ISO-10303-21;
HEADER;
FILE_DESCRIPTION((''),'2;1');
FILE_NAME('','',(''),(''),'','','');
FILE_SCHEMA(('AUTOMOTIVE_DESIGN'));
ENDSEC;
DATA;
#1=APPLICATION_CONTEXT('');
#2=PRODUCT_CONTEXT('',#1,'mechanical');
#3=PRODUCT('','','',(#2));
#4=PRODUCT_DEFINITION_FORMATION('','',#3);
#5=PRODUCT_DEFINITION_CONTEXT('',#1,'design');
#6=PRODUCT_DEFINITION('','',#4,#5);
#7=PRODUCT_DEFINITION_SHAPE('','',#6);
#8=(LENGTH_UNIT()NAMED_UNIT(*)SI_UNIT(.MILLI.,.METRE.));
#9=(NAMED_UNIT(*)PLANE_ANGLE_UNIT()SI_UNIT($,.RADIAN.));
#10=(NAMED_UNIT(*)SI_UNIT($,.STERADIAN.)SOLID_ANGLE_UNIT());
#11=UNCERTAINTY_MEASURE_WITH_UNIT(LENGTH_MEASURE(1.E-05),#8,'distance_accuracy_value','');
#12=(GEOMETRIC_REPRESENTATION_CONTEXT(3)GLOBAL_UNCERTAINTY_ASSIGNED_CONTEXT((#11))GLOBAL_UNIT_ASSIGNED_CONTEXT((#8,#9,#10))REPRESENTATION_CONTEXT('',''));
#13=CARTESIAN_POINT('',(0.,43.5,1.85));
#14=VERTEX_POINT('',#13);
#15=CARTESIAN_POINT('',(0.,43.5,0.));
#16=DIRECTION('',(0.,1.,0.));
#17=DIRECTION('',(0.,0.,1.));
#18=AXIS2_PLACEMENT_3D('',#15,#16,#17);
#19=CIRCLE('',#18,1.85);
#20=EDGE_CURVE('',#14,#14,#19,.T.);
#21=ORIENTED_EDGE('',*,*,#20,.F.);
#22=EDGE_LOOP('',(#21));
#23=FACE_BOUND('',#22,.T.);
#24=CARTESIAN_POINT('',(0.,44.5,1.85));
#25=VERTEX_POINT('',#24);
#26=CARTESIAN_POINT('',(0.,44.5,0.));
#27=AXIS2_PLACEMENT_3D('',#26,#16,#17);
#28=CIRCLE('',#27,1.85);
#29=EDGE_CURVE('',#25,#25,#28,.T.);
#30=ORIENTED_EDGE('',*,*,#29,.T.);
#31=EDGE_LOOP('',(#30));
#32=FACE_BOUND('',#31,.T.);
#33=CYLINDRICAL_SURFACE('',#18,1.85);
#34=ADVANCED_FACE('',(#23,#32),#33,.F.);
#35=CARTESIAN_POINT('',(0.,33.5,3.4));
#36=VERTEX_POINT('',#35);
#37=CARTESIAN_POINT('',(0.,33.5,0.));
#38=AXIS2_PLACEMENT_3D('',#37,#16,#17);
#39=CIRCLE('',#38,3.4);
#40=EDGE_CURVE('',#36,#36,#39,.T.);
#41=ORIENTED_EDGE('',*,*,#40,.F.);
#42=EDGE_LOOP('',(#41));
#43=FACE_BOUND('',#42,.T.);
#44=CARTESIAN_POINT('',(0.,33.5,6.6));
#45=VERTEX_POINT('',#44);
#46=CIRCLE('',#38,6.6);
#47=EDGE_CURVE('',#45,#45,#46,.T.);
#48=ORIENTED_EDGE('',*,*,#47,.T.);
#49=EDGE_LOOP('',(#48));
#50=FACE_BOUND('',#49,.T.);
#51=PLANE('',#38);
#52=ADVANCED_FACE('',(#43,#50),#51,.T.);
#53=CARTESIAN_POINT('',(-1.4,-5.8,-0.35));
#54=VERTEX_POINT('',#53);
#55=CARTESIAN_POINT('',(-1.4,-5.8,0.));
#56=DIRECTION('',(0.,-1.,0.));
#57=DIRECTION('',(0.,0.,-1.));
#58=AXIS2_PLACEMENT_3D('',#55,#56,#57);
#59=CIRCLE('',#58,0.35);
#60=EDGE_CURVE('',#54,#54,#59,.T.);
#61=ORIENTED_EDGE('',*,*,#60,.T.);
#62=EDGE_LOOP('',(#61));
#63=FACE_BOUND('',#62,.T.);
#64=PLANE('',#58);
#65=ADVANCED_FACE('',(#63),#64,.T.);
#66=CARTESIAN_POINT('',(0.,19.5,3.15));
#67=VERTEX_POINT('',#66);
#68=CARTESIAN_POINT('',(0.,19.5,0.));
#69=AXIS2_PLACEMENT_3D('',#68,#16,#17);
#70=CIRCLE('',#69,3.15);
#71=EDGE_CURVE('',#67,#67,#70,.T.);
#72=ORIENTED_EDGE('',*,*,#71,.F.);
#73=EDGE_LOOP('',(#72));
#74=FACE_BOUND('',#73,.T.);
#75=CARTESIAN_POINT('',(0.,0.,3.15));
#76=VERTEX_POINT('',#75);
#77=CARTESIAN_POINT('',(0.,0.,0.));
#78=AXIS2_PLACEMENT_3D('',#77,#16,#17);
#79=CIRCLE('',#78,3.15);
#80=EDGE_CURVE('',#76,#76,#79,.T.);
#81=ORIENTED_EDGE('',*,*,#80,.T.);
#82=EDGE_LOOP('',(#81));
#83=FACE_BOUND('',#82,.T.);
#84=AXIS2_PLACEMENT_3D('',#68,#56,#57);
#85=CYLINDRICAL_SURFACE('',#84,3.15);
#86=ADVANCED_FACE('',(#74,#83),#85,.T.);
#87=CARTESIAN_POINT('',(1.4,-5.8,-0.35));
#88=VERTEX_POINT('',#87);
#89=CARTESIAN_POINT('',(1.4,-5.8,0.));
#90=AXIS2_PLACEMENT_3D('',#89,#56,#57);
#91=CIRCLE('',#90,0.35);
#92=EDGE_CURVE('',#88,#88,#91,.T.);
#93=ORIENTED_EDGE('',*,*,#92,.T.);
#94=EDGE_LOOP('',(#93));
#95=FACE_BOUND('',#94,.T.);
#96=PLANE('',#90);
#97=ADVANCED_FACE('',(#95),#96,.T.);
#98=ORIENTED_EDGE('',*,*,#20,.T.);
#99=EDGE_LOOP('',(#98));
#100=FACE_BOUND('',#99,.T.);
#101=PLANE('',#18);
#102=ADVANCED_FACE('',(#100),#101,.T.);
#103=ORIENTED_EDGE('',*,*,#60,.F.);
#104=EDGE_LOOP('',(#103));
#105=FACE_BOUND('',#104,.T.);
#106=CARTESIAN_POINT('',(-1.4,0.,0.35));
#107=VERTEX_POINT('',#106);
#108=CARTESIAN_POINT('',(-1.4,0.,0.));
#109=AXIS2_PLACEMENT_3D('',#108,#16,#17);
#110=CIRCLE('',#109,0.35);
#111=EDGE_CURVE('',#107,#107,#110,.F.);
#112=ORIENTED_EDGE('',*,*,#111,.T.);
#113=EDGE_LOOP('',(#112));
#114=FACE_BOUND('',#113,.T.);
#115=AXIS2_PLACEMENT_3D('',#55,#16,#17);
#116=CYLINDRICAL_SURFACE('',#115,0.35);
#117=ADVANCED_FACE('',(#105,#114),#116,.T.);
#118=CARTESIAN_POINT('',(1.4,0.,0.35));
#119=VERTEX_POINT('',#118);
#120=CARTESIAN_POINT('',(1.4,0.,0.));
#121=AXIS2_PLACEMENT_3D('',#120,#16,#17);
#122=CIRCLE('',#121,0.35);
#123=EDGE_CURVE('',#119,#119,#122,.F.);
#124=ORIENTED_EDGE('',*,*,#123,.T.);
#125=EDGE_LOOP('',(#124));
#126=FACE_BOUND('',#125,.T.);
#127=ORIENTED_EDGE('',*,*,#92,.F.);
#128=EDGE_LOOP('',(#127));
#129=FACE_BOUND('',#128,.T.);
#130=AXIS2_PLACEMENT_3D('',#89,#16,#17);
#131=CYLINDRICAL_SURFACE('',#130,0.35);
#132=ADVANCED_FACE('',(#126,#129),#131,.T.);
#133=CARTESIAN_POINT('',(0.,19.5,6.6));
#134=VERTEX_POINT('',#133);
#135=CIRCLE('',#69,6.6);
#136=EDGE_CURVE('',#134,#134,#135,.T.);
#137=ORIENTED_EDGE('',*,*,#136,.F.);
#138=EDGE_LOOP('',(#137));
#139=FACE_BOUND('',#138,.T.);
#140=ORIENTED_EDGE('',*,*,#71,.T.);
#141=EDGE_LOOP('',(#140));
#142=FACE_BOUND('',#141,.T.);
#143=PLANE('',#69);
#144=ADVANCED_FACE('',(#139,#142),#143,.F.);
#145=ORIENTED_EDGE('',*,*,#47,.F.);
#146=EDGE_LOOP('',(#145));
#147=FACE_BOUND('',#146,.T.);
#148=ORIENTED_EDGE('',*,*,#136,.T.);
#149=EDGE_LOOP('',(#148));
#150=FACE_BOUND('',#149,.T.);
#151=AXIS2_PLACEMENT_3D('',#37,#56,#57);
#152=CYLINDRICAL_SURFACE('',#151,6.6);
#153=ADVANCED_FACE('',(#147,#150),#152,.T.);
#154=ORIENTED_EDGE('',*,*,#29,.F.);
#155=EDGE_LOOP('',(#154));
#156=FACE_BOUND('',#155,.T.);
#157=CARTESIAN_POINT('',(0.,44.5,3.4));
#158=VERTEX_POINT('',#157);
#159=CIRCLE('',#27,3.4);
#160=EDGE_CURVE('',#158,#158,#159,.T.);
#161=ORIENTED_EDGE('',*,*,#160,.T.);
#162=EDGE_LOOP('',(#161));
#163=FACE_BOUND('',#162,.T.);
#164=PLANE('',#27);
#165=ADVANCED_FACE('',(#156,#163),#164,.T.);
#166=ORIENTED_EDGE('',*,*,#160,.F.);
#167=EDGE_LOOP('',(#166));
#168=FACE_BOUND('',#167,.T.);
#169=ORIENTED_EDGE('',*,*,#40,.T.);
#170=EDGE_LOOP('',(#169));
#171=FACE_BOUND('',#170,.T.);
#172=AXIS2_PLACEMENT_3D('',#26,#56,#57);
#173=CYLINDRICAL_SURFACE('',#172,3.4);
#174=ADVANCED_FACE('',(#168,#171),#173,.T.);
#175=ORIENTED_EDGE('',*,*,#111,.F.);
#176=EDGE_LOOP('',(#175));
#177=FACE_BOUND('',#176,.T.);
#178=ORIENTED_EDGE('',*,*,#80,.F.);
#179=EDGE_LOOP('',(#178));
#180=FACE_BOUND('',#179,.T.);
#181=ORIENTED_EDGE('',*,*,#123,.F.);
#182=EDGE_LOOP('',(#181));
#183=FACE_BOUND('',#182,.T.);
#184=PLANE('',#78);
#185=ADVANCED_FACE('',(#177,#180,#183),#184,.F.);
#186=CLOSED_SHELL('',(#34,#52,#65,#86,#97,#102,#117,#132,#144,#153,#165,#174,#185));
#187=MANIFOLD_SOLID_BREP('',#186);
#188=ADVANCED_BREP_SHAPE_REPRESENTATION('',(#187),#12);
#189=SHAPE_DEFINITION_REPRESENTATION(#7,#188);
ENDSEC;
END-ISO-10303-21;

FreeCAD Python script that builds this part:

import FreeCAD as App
import Part
import Sketcher

V = App.Vector

doc = App.newDocument("Part")
body = doc.addObject("PartDesign::Body", "Body")

sketch1 = doc.addObject("Sketcher::SketchObject", "Sketch")
body.addObject(sketch1)
sketch1.AttachmentSupport = (doc.XZ_Plane, [""])
sketch1.MapMode = "FlatFace"
sketch1.addGeometry(Part.Circle(V(0, 0, 0), V(0, 0, 1), 3.1), False)
sketch1.addConstraint(Sketcher.Constraint("Coincident", 0, 3, -1, 1))
sketch1.addConstraint(Sketcher.Constraint("Diameter", 0, 6.3))
pad1 = doc.addObject("PartDesign::Pad", "Pad")
body.addObject(pad1)
pad1.Profile = sketch1
pad1.Length = 19.5
pad1.Reversed = True

sketch2 = doc.addObject("Sketcher::SketchObject", "Sketch001")
body.addObject(sketch2)
sketch2.AttachmentSupport = (doc.XZ_Plane, [""])
sketch2.MapMode = "FlatFace"
sketch2.addGeometry(Part.Circle(V(-1.4, 0, 0), V(0, 0, 1), 0.35), False)
sketch2.addGeometry(Part.Circle(V(1.4, 0, 0), V(0, 0, 1), 0.35), False)
sketch2.addConstraint(Sketcher.Constraint("Equal", 0, 1))
sketch2.addConstraint(Sketcher.Constraint("Symmetric", 0, 3, 1, 3, -1, 1))
sketch2.addConstraint(Sketcher.Constraint("PointOnObject", 0, 3, -1))
sketch2.addConstraint(Sketcher.Constraint("Diameter", 0, 0.7))
sketch2.addConstraint(Sketcher.Constraint("DistanceX", 0, 3, -1, 1, 1.4))
pad2 = doc.addObject("PartDesign::Pad", "Pad001")
body.addObject(pad2)
pad2.Profile = sketch2
pad2.Length = 5.8

sketch3 = doc.addObject("Sketcher::SketchObject", "Sketch002")
body.addObject(sketch3)
sketch3.AttachmentSupport = (doc.XZ_Plane, [""])
sketch3.MapMode = "FlatFace"
sketch3.AttachmentOffset = App.Placement(V(0, 0, -19.5), App.Rotation())
sketch3.addGeometry(Part.Circle(V(0, 0, 0), V(0, 0, 1), 7), False)
sketch3.addConstraint(Sketcher.Constraint("Coincident", 0, 3, -1, 1))
sketch3.addConstraint(Sketcher.Constraint("Diameter", 0, 13.2))
pad3 = doc.addObject("PartDesign::Pad", "Pad002")
body.addObject(pad3)
pad3.Profile = sketch3
pad3.Length = 14
pad3.Reversed = True

sketch4 = doc.addObject("Sketcher::SketchObject", "Sketch003")
body.addObject(sketch4)
sketch4.AttachmentSupport = (doc.XZ_Plane, [""])
sketch4.MapMode = "FlatFace"
sketch4.AttachmentOffset = App.Placement(V(0, 0, -33.5), App.Rotation())
sketch4.addGeometry(Part.Circle(V(0, 0, 0), V(0, 0, 1), 3.4), False)
sketch4.addConstraint(Sketcher.Constraint("Coincident", 0, 3, -1, 1))
sketch4.addConstraint(Sketcher.Constraint("Diameter", 0, 6.8))
pad4 = doc.addObject("PartDesign::Pad", "Pad003")
body.addObject(pad4)
pad4.Profile = sketch4
pad4.Length = 11
pad4.Reversed = True

sketch5 = doc.addObject("Sketcher::SketchObject", "Sketch004")
body.addObject(sketch5)
sketch5.AttachmentSupport = (doc.XZ_Plane, [""])
sketch5.MapMode = "FlatFace"
sketch5.AttachmentOffset = App.Placement(V(0, 0, -44.5), App.Rotation())
sketch5.addGeometry(Part.Circle(V(0, 0, 0), V(0, 0, 1), 1.9), False)
sketch5.addConstraint(Sketcher.Constraint("Coincident", 0, 3, -1, 1))
sketch5.addConstraint(Sketcher.Constraint("Diameter", 0, 3.7))
pocket1 = doc.addObject("PartDesign::Pocket", "Pocket")
body.addObject(pocket1)
pocket1.Profile = sketch5
pocket1.Length = 1
pocket1.Reversed = True

doc.recompute()
